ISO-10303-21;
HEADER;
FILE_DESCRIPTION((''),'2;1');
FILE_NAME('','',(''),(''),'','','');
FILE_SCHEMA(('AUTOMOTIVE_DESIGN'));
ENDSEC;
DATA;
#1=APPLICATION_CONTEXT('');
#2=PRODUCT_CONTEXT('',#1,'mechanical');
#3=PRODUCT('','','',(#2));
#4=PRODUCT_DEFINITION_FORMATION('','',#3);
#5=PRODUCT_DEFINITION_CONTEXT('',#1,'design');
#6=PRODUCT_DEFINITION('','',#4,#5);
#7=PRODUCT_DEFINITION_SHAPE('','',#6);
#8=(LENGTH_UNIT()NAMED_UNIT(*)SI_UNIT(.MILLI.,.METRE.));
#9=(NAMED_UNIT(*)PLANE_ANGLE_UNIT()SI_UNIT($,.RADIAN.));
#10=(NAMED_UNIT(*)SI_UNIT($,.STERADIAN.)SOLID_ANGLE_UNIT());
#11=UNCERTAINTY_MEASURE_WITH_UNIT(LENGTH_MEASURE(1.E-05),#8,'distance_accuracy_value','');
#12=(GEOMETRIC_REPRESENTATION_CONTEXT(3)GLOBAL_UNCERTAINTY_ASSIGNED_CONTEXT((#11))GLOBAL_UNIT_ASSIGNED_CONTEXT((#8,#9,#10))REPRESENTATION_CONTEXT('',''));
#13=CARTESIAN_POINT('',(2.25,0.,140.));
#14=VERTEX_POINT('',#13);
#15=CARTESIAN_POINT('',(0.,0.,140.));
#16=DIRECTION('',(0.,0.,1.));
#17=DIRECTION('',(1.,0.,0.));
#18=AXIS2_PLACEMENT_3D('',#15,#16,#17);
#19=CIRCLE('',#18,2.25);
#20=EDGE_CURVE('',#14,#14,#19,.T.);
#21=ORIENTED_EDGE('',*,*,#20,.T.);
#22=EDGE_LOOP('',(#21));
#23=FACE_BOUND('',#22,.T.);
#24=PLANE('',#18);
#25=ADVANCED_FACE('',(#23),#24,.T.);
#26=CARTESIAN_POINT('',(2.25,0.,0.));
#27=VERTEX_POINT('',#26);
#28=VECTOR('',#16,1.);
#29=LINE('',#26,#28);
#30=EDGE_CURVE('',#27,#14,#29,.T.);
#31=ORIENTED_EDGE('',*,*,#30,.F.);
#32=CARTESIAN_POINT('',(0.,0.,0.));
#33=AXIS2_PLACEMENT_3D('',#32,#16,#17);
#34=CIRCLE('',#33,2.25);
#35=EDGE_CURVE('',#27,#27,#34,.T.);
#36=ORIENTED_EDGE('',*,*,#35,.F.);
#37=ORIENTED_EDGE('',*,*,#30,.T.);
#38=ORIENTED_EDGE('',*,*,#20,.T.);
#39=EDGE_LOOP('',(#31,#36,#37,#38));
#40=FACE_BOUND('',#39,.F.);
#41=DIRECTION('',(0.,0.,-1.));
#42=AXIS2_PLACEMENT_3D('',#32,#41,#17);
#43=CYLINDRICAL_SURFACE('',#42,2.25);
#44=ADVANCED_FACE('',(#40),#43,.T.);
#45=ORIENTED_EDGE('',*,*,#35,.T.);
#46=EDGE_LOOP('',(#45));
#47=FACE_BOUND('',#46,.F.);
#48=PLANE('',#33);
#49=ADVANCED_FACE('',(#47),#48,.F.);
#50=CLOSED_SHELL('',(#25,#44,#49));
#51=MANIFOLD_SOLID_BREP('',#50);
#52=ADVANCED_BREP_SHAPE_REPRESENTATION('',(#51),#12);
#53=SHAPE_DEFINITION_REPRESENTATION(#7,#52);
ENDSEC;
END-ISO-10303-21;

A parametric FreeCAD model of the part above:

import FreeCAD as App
import Part
import Sketcher
from FreeCAD import Vector

doc = App.newDocument("Part")
body = doc.addObject("PartDesign::Body", "Body")

sketch1 = body.newObject("Sketcher::SketchObject", "Sketch")
sketch1.AttachmentSupport = (doc.getObject("XY_Plane"), [""])
sketch1.MapMode = "FlatFace"
sketch1.addGeometry(Part.Circle(Vector(0, 0, 0), Vector(0, 0, 1), 2.2), False)
sketch1.addConstraint([
    Sketcher.Constraint("Coincident", 0, 3, -1, 1),
    Sketcher.Constraint("Diameter", 0, 4.5),
])
pad1 = body.newObject("PartDesign::Pad", "Pad")
pad1.Profile = sketch1
pad1.Length = 140

doc.recompute()
